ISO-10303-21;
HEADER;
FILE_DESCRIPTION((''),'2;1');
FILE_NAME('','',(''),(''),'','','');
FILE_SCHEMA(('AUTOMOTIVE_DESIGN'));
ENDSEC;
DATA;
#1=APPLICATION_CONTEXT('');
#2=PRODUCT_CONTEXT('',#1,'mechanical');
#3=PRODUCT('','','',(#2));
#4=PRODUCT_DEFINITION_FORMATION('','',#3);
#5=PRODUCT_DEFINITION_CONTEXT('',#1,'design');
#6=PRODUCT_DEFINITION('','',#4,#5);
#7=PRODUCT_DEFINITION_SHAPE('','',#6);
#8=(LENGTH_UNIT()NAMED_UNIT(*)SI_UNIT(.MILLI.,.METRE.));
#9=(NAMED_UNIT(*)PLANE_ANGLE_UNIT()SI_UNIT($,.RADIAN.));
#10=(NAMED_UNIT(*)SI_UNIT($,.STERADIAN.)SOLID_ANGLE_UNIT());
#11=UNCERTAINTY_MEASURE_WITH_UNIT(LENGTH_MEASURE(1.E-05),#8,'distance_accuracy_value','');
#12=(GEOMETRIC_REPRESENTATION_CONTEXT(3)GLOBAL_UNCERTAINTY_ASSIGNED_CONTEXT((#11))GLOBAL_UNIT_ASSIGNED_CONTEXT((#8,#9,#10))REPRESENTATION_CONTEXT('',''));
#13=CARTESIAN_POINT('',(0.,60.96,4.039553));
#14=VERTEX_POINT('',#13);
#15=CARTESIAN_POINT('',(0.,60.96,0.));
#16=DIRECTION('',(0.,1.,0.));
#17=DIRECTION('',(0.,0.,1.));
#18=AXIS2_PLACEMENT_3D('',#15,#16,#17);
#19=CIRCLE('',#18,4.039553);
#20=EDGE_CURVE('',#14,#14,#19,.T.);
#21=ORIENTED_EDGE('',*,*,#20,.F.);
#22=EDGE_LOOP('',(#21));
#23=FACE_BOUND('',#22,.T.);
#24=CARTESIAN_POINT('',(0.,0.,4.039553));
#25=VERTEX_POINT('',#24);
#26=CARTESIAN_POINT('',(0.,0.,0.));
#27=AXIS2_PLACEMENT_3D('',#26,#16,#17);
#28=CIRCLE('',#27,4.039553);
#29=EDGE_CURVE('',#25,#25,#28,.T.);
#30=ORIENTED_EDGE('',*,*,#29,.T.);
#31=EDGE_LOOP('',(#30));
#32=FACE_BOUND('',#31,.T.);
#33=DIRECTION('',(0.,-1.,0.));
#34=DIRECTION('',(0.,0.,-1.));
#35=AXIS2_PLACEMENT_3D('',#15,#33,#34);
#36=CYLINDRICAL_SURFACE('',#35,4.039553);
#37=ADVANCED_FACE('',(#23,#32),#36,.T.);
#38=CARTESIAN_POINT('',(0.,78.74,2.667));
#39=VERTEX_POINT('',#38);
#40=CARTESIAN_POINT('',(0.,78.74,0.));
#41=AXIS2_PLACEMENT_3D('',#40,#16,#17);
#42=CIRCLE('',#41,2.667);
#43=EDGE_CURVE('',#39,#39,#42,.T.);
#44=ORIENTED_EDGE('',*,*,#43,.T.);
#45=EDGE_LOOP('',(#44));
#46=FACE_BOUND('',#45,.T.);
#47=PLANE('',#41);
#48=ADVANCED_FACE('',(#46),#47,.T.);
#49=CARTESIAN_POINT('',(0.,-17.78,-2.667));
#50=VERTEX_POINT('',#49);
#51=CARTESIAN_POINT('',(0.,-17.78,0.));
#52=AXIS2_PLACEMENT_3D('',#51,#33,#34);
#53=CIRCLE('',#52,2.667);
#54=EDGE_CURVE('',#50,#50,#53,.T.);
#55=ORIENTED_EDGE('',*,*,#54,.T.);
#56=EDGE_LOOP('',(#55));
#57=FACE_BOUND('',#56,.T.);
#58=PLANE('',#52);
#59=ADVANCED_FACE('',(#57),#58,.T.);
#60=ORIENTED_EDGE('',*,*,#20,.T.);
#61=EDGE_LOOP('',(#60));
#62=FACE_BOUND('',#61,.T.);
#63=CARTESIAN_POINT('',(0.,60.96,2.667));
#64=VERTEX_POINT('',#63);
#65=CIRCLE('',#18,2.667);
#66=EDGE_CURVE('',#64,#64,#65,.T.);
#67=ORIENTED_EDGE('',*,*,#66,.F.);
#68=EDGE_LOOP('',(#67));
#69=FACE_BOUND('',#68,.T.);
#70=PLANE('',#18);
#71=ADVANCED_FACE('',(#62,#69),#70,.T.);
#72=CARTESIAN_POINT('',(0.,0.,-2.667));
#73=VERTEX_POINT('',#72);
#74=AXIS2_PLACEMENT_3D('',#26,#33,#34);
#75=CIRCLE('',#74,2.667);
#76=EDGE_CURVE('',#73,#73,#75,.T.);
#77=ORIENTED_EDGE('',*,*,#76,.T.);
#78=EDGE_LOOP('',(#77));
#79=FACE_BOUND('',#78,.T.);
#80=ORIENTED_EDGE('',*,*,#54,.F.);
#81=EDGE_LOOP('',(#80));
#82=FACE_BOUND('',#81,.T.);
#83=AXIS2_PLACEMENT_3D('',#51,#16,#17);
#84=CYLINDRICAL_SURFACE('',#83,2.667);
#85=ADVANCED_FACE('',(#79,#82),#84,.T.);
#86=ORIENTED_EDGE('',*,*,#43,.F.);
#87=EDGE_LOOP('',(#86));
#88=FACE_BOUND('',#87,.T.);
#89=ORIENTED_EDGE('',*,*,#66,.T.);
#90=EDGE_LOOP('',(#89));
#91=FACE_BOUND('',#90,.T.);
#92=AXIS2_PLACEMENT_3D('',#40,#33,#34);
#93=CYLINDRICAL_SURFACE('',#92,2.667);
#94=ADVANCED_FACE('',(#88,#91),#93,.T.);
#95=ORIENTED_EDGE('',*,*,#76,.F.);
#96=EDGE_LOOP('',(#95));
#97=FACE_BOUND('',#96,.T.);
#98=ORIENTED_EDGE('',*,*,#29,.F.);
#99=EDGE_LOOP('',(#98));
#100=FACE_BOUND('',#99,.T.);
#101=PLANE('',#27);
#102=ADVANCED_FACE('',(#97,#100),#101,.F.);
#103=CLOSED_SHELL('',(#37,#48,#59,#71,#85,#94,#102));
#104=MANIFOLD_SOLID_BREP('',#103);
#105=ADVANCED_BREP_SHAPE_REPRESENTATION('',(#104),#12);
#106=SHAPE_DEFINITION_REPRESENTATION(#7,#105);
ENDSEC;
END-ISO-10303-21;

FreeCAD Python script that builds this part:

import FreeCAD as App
import Part
import Sketcher

V = App.Vector
Q = App.Units.Quantity

doc = App.newDocument("Part")
body = doc.addObject("PartDesign::Body", "Body")

sketch1 = doc.addObject("Sketcher::SketchObject", "Sketch")
body.addObject(sketch1)
sketch1.AttachmentSupport = (doc.XZ_Plane, [""])
sketch1.MapMode = "FlatFace"
sketch1.addGeometry(Part.Circle(V(0, 0, 0), V(0, 0, 1), 4), False)
sketch1.addConstraint([
    Sketcher.Constraint("Coincident", 0, 3, -1, 1),
    Sketcher.Constraint("Diameter", 0, 8.079106),
])
pad1 = doc.addObject("PartDesign::Pad", "Pad")
body.addObject(pad1)
pad1.Profile = sketch1
pad1.Length = Q("2.4 in")
pad1.Reversed = True

sketch2 = doc.addObject("Sketcher::SketchObject", "Sketch001")
body.addObject(sketch2)
sketch2.AttachmentSupport = (doc.XZ_Plane, [""])
sketch2.MapMode = "FlatFace"
sketch2.AttachmentOffset = App.Placement(V(0, 0, -2.4 * 25.4), App.Rotation())
sketch2.addGeometry(Part.Circle(V(0, 0, 0), V(0, 0, 1), 2.7), False)
sketch2.addConstraint([
    Sketcher.Constraint("Coincident", 0, 3, -1, 1),
    Sketcher.Constraint("Diameter", 0, Q("0.21 in")),
])
pad2 = doc.addObject("PartDesign::Pad", "Pad001")
body.addObject(pad2)
pad2.Profile = sketch2
pad2.Length = Q("0.7 in")
pad2.Reversed = True

sketch3 = doc.addObject("Sketcher::SketchObject", "Sketch002")
body.addObject(sketch3)
sketch3.AttachmentSupport = (doc.XZ_Plane, [""])
sketch3.MapMode = "FlatFace"
sketch3.addGeometry(Part.Circle(V(0, 0, 0), V(0, 0, 1), 2.7), False)
sketch3.addConstraint([
    Sketcher.Constraint("Coincident", 0, 3, -1, 1),
    Sketcher.Constraint("Diameter", 0, Q("0.21 in")),
])
pad3 = doc.addObject("PartDesign::Pad", "Pad002")
body.addObject(pad3)
pad3.Profile = sketch3
pad3.Length = Q("0.7 in")

doc.recompute()
